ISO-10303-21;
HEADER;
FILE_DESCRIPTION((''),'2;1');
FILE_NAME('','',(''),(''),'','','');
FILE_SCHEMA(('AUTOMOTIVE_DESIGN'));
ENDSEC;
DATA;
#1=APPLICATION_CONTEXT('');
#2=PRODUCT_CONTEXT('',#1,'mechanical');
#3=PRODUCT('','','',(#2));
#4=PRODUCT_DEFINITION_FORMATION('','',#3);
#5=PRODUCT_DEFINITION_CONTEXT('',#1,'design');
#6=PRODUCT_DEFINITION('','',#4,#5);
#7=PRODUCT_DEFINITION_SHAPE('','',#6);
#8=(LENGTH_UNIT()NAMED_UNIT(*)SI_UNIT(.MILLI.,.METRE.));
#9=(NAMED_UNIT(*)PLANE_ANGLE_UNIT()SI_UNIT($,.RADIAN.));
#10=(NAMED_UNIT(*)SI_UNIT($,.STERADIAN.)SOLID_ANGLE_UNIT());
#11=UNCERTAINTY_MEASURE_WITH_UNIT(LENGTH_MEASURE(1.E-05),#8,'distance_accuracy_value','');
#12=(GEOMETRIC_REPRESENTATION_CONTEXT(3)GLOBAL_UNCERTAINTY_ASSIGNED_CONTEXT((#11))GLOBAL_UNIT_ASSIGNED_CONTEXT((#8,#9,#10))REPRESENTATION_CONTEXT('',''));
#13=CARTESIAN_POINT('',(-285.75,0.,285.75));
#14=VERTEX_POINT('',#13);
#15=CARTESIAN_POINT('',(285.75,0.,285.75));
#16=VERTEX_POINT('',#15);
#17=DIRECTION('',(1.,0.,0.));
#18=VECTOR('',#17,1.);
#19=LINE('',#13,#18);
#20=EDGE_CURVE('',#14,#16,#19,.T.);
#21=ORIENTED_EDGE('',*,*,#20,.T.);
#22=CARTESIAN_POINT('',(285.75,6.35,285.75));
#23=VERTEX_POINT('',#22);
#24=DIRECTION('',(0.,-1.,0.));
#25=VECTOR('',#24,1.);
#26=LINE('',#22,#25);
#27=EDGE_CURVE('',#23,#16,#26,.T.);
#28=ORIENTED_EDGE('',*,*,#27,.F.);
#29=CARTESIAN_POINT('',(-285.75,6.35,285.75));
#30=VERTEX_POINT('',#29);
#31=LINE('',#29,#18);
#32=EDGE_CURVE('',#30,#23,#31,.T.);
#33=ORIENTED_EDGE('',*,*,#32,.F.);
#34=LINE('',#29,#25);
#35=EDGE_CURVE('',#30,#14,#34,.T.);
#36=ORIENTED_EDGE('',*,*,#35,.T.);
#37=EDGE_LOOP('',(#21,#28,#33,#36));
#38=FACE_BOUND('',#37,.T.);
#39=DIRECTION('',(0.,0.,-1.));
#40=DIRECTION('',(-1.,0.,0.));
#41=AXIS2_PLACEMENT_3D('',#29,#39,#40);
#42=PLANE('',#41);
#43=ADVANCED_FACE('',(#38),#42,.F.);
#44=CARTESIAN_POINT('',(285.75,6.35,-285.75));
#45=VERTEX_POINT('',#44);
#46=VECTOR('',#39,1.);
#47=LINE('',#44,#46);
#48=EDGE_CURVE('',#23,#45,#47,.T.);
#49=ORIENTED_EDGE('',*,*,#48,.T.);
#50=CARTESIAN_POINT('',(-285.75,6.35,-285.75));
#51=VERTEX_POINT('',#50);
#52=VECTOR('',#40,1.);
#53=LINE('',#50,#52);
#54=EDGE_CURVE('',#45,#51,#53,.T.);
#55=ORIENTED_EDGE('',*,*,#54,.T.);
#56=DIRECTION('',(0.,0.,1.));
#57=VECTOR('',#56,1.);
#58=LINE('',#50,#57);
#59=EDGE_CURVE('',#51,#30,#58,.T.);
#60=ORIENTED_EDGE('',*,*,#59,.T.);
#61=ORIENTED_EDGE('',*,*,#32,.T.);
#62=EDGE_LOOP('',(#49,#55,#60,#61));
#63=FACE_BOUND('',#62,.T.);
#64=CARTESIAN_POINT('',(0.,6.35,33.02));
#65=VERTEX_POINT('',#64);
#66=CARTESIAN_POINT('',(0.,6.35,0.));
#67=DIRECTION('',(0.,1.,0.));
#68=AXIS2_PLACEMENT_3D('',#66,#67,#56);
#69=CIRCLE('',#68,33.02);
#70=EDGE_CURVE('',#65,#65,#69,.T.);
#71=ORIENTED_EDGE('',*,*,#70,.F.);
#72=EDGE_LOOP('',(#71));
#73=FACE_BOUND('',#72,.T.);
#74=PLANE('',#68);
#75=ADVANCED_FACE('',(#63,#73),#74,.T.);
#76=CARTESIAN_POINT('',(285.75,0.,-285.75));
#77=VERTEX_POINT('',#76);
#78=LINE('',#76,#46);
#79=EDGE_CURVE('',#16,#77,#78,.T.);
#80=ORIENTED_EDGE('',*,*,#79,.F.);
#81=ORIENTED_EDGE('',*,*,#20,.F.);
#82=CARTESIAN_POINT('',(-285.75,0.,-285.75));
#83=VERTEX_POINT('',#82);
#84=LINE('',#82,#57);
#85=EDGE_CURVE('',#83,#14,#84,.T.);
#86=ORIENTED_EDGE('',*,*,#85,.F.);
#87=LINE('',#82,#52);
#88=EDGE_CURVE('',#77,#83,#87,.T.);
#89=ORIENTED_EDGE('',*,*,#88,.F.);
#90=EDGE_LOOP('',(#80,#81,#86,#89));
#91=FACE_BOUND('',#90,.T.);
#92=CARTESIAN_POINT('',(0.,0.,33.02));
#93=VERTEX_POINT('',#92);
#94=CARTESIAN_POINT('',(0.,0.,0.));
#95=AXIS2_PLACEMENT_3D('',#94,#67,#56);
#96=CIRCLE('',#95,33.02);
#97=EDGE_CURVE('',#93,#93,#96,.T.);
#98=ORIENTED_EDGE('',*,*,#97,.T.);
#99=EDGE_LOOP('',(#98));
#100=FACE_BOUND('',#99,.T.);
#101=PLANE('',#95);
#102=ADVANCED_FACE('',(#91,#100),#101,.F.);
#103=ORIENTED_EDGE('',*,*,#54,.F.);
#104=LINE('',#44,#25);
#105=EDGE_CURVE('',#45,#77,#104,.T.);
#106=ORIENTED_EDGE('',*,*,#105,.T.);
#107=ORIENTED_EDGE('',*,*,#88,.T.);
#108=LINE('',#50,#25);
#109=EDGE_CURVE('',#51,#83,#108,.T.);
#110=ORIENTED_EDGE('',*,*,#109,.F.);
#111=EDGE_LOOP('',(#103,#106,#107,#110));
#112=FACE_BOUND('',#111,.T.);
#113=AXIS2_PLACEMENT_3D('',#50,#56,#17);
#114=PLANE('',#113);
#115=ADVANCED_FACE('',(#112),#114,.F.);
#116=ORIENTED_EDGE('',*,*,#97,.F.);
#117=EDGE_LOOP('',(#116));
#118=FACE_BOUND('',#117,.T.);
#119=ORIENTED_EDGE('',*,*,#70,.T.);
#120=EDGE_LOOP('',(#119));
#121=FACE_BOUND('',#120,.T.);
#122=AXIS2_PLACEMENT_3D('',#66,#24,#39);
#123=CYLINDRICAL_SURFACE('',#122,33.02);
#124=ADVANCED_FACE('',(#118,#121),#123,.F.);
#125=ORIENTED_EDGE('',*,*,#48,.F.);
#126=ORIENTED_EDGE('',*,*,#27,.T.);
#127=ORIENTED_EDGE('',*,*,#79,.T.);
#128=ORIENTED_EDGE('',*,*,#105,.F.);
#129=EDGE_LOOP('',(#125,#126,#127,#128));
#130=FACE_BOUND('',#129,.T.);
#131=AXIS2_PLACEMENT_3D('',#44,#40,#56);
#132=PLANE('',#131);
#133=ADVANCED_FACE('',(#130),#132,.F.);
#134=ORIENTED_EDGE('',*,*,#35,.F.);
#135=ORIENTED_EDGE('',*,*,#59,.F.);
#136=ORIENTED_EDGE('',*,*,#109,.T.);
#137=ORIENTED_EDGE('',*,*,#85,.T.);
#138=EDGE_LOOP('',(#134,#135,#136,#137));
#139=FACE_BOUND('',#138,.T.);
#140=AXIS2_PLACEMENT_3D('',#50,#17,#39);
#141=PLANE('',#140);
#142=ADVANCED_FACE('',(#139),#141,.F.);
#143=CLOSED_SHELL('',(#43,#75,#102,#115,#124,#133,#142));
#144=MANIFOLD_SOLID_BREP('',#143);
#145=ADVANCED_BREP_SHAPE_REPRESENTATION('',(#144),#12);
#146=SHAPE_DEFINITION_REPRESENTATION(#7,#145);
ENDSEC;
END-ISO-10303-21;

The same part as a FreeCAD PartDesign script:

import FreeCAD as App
import Part
import Sketcher
Q = App.Units.Quantity

doc = App.newDocument("Part")
body = doc.addObject("PartDesign::Body", "Body")

sketch1 = body.newObject("Sketcher::SketchObject", "Sketch")
sketch1.AttachmentSupport = (doc.getObject("XZ_Plane"), [""])
sketch1.MapMode = "FlatFace"
sketch1.addGeometry(Part.LineSegment(App.Vector(-286, -286, 0), App.Vector(-286, 286, 0)), False)
sketch1.addGeometry(Part.LineSegment(App.Vector(-286, 286, 0), App.Vector(286, 286, 0)), False)
sketch1.addGeometry(Part.LineSegment(App.Vector(286, 286, 0), App.Vector(286, -286, 0)), False)
sketch1.addGeometry(Part.LineSegment(App.Vector(286, -286, 0), App.Vector(-286, -286, 0)), False)
sketch1.addGeometry(Part.Circle(App.Vector(0, 0, 0), App.Vector(0, 0, 1), 33), False)
sketch1.addConstraint(Sketcher.Constraint("Coincident", 0, 2, 1, 1))
sketch1.addConstraint(Sketcher.Constraint("Coincident", 1, 2, 2, 1))
sketch1.addConstraint(Sketcher.Constraint("Coincident", 2, 2, 3, 1))
sketch1.addConstraint(Sketcher.Constraint("Coincident", 3, 2, 0, 1))
sketch1.addConstraint(Sketcher.Constraint("Vertical", 0))
sketch1.addConstraint(Sketcher.Constraint("Horizontal", 1))
sketch1.addConstraint(Sketcher.Constraint("Vertical", 2))
sketch1.addConstraint(Sketcher.Constraint("Horizontal", 3))
sketch1.addConstraint(Sketcher.Constraint("Coincident", 4, 3, -1, 1))
sketch1.addConstraint(Sketcher.Constraint("Symmetric", 0, 2, 2, 2, -1, 1))
sketch1.addConstraint(Sketcher.Constraint("Equal", 3, 0))
sketch1.addConstraint(Sketcher.Constraint("Diameter", 4, Q("2.6 in")))
sketch1.addConstraint(Sketcher.Constraint("DistanceX", 1, 1, 1, 2, Q("22.5 in")))
pad1 = body.newObject("PartDesign::Pad", "Pad")
pad1.Profile = sketch1
pad1.Length = Q("0.25 in")
pad1.Reversed = True

doc.recompute()
